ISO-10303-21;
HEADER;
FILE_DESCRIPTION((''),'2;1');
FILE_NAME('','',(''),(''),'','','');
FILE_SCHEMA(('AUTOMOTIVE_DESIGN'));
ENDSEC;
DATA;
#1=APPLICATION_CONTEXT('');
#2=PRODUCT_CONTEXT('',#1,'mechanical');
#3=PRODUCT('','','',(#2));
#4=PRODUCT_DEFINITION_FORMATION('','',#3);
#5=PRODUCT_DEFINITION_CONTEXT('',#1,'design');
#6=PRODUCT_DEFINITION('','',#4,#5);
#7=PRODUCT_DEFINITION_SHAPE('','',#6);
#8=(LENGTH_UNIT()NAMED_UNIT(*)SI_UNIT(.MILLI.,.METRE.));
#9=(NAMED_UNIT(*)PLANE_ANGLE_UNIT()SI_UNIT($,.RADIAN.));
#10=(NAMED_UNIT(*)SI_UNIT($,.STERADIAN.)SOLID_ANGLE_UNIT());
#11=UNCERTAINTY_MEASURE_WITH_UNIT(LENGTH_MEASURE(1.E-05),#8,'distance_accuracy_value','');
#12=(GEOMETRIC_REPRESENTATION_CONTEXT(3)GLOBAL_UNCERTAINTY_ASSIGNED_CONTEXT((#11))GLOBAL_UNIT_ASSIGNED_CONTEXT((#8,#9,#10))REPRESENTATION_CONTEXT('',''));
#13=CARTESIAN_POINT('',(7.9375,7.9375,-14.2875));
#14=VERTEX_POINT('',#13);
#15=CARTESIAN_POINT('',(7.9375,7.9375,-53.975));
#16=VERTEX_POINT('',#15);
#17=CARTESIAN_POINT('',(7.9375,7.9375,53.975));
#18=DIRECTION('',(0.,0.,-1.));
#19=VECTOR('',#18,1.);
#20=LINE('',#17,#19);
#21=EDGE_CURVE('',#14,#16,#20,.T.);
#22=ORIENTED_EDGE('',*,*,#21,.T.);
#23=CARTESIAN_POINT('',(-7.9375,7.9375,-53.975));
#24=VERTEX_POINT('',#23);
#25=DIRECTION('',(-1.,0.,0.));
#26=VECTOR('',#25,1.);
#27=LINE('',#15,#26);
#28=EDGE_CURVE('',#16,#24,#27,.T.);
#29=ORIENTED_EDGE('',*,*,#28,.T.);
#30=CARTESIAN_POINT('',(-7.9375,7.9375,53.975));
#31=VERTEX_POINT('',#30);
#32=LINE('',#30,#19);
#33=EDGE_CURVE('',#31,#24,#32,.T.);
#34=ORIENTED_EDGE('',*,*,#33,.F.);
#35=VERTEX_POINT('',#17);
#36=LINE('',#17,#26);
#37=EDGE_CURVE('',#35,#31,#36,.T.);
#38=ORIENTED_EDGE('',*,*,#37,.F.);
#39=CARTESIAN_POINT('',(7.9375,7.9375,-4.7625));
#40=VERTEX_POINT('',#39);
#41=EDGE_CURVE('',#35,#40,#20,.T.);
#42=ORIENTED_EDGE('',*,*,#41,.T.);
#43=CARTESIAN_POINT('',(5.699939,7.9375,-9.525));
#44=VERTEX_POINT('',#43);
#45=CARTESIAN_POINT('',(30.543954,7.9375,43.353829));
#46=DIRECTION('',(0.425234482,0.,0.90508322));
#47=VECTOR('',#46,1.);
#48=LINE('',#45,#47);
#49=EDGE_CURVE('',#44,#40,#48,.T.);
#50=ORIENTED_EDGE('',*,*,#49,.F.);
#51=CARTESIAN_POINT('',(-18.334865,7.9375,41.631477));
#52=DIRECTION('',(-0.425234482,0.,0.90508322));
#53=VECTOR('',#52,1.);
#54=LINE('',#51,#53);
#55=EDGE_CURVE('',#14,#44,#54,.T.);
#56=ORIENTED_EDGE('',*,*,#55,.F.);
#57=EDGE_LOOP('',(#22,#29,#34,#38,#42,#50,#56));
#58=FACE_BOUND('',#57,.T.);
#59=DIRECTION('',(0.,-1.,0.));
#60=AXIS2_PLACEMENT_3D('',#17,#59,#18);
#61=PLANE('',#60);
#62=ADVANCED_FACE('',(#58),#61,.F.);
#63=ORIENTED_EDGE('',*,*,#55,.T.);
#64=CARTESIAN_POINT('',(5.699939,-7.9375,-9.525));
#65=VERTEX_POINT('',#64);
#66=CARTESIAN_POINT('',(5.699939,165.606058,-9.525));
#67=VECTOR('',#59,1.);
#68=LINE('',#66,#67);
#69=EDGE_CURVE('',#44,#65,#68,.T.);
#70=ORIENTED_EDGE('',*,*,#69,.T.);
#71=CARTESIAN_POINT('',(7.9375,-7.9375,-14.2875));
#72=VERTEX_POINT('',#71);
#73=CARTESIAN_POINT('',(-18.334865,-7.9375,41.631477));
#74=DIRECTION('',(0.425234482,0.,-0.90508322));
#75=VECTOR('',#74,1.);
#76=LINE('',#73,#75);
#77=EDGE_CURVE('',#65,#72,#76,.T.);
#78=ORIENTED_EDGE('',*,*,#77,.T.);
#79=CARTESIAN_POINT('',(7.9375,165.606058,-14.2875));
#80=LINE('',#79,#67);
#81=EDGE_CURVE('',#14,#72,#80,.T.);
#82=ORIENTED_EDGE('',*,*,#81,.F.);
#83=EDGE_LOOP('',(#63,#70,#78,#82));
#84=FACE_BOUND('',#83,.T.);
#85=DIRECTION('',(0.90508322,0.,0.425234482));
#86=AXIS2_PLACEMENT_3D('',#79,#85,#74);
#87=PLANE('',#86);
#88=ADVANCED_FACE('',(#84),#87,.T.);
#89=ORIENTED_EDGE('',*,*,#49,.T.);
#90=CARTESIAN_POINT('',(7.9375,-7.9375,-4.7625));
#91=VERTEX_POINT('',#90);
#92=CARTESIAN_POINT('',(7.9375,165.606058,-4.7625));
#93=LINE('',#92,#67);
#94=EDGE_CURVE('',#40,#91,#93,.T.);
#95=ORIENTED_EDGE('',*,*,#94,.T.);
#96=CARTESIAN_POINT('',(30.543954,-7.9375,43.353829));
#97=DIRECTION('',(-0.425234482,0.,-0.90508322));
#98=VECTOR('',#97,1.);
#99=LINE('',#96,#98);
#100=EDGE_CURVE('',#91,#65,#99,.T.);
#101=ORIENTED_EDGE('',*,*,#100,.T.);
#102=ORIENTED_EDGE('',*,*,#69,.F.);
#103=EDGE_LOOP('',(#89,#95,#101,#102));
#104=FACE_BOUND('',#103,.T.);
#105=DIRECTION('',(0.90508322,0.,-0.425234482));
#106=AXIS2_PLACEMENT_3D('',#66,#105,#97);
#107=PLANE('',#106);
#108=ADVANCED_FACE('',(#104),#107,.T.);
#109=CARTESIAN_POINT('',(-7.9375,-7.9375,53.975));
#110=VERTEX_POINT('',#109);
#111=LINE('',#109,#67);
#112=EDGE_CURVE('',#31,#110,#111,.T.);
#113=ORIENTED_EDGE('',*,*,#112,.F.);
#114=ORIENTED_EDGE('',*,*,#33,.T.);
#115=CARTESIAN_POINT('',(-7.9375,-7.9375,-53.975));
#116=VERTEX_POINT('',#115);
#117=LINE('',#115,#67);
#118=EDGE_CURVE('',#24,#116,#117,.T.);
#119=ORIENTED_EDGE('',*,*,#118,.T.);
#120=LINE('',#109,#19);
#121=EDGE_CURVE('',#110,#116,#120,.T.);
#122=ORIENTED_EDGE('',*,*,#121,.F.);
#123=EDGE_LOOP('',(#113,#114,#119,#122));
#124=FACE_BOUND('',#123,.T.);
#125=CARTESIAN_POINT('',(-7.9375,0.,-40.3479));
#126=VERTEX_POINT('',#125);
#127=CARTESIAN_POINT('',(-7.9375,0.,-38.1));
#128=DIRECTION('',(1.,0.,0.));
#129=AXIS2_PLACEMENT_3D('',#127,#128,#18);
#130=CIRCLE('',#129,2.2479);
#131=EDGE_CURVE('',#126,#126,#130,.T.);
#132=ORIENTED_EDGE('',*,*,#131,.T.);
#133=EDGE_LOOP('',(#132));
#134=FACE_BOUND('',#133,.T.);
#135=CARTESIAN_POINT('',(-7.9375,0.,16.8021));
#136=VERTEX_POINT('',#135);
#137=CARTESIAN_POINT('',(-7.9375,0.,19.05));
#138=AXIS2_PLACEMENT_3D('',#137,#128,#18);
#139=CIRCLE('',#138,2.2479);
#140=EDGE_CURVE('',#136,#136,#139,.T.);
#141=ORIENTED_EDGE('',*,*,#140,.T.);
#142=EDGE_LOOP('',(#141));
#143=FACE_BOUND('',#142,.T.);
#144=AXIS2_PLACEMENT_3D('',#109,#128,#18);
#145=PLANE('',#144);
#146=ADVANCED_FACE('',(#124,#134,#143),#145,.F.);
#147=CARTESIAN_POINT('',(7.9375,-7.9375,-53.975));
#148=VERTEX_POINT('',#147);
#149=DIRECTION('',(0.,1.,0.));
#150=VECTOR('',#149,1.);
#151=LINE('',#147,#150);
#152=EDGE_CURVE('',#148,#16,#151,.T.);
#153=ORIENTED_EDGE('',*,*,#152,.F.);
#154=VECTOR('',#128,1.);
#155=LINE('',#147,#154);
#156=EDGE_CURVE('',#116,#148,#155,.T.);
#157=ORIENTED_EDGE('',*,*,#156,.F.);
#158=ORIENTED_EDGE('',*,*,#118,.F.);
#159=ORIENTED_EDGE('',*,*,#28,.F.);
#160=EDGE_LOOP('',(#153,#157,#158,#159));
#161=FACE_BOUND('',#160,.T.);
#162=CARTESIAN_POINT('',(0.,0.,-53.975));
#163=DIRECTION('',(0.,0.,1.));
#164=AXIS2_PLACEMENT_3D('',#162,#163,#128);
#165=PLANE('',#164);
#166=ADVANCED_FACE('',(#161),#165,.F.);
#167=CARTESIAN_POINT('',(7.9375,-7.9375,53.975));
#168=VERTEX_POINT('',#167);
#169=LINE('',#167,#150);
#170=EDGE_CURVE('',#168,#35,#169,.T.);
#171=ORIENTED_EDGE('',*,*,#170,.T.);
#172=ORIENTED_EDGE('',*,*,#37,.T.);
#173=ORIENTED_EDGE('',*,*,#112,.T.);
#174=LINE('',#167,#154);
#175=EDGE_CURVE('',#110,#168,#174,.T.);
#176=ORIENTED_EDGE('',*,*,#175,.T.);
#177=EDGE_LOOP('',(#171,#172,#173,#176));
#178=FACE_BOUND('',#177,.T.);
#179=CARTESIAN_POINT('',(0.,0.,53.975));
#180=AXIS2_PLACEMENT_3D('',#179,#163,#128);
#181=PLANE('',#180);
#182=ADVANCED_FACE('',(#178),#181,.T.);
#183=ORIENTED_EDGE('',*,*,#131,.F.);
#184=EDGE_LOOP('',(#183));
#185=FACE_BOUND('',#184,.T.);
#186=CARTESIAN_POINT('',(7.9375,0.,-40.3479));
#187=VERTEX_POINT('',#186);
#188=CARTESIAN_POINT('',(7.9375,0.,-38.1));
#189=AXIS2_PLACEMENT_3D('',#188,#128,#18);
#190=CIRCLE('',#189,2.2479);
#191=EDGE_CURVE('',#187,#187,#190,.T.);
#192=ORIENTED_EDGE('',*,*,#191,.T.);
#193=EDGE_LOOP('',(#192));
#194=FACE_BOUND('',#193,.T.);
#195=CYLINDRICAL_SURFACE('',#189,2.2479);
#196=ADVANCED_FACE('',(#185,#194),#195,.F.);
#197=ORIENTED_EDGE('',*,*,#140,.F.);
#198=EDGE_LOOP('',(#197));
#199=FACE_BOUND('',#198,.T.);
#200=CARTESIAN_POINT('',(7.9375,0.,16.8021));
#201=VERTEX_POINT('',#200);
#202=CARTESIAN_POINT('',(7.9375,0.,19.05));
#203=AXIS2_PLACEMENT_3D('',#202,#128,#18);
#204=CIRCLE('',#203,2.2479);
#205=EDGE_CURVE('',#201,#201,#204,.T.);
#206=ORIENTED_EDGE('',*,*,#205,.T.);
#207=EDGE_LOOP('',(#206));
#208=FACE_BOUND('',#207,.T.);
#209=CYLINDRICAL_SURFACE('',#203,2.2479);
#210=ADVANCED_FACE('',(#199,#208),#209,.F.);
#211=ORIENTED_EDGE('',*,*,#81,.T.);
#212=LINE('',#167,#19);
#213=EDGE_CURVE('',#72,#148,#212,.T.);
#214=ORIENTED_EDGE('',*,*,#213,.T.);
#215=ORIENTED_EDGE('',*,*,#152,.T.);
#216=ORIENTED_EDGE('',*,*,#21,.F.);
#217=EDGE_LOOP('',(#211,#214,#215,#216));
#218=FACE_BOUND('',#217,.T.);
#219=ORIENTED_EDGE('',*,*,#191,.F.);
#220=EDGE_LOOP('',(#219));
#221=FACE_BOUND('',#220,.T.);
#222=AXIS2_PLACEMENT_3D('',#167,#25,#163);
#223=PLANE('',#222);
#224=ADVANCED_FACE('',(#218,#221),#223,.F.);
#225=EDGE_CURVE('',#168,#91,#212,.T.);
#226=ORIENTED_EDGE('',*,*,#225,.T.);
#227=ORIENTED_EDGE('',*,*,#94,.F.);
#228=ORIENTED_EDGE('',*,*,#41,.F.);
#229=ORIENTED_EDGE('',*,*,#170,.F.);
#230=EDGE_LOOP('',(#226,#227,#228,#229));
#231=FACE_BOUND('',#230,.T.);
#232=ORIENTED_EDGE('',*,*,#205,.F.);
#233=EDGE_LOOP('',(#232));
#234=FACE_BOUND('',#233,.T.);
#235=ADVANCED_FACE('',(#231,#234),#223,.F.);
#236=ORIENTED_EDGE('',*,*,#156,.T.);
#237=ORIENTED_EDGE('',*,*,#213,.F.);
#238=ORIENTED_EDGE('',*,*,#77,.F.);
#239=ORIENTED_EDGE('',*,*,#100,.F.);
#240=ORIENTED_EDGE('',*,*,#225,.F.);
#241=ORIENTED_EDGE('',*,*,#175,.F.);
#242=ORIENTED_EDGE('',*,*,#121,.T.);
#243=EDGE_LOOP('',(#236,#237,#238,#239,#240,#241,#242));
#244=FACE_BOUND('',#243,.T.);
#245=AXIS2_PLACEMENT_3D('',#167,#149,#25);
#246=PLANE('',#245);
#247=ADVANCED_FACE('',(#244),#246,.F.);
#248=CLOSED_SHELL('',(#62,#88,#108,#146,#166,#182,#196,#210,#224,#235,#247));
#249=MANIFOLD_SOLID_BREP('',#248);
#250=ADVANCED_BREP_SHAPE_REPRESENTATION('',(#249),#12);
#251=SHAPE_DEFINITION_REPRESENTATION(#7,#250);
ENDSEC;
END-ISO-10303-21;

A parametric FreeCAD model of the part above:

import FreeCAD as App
import Part
import Sketcher
from FreeCAD import Vector
Q = App.Units.Quantity


def add_polygon(sketch, points):
    """Adds a closed chain of lines whose ends are joined by coincident constraints."""
    first, n = sketch.GeometryCount, len(points)
    for a, b in zip(points, points[1:] + points[:1]):
        sketch.addGeometry(Part.LineSegment(App.Vector(*a, 0), App.Vector(*b, 0)), False)
    for i in range(n):
        sketch.addConstraint(Sketcher.Constraint("Coincident", first + i, 2, first + (i + 1) % n, 1))

doc = App.newDocument("Part")
body = doc.addObject("PartDesign::Body", "Body")

sketch1 = doc.addObject("Sketcher::SketchObject", "Sketch")
body.addObject(sketch1)
sketch1.AttachmentSupport = (doc.XY_Plane, [""])
sketch1.MapMode = "FlatFace"
add_polygon(sketch1, [(-8, 8), (-8, -8), (8, -8), (8, 8)])
sketch1.addConstraint(Sketcher.Constraint("Vertical", 0))
sketch1.addConstraint(Sketcher.Constraint("Horizontal", 1))
sketch1.addConstraint(Sketcher.Constraint("Vertical", 2))
sketch1.addConstraint(Sketcher.Constraint("Horizontal", 3))
sketch1.addConstraint(Sketcher.Constraint("Symmetric", 0, 2, 2, 2, -1, 1))
sketch1.addConstraint(Sketcher.Constraint("Equal", 3, 0))
sketch1.addConstraint(Sketcher.Constraint("DistanceX", 1, 1, 1, 2, Q("0.625 in")))
pad1 = doc.addObject("PartDesign::Pad", "Pad")
body.addObject(pad1)
pad1.Profile = sketch1
pad1.Length = Q("4.25 in")
pad1.Midplane = True

sketch2 = doc.addObject("Sketcher::SketchObject", "Sketch001")
body.addObject(sketch2)
sketch2.AttachmentSupport = (doc.XZ_Plane, [""])
sketch2.MapMode = "FlatFace"
sketch2.AttachmentOffset = App.Placement(Vector(0, 0, -0.3125 * 25.4), App.Rotation())
add_polygon(sketch2, [(72, -150), (8, -14), (6, -10), (8, -5), (72, 131), (372, 131), (372, -150)])
sketch2.addConstraint(Sketcher.Constraint("Horizontal", 4))
sketch2.addConstraint(Sketcher.Constraint("Vertical", 5))
sketch2.addConstraint(Sketcher.Constraint("Horizontal", 6))
sketch2.addConstraint(Sketcher.Constraint("Parallel", 0, 1))
sketch2.addConstraint(Sketcher.Constraint("Parallel", 2, 3))
sketch2.addConstraint(Sketcher.Constraint("Vertical", 0, 2, 2, 2))
sketch2.addConstraint(Sketcher.Constraint("Vertical", 3, 2, 6, 2))
sketch2.addConstraint(Sketcher.Constraint("Equal", 1, 2))
sketch2.addConstraint(Sketcher.Constraint("DistanceX", -1, 1, 0, 2, Q("0.3125 in")))
sketch2.addConstraint(Sketcher.Constraint("DistanceY", 0, 2, -1, 1, Q("0.5625 in")))
sketch2.addConstraint(Sketcher.Constraint("DistanceY", 1, 2, -1, 1, Q("0.375 in")))
sketch2.addConstraint(Sketcher.Constraint("DistanceX", 4, 1, 4, 2, 300.336499))
sketch2.addConstraint(Sketcher.Constraint("Distance", 0, 150.168249))
sketch2.addConstraint(Sketcher.Constraint("DistanceY", 5, 2, 5, 1, 281.354525))
pocket1 = doc.addObject("PartDesign::Pocket", "Pocket")
body.addObject(pocket1)
pocket1.Profile = sketch2
pocket1.Type = "ThroughAll"
pocket1.Midplane = True

sketch3 = doc.addObject("Sketcher::SketchObject", "Sketch002")
body.addObject(sketch3)
sketch3.AttachmentSupport = (doc.YZ_Plane, [""])
sketch3.MapMode = "FlatFace"
sketch3.AttachmentOffset = App.Placement(Vector(0, 0, 0.3125 * 25.4), App.Rotation())
sketch3.addGeometry(Part.Circle(Vector(0, -38.1, 0), Vector(0, 0, 1), 2.2), False)
sketch3.addGeometry(Part.Circle(Vector(0, 19.1, 0), Vector(0, 0, 1), 2.2), False)
sketch3.addConstraint(Sketcher.Constraint("Equal", 0, 1))
sketch3.addConstraint(Sketcher.Constraint("PointOnObject", 0, 3, -2))
sketch3.addConstraint(Sketcher.Constraint("PointOnObject", 1, 3, -2))
sketch3.addConstraint(Sketcher.Constraint("Diameter", 0, Q("0.177 in")))
sketch3.addConstraint(Sketcher.Constraint("DistanceY", 0, 3, -1, 1, Q("1.5 in")))
sketch3.addConstraint(Sketcher.Constraint("DistanceY", -1, 1, 1, 3, Q("0.75 in")))
doc.recompute()
hole = doc.addObject("PartDesign::Hole", "Hole")
body.addObject(hole)
hole.Profile = sketch3
hole.ThreadType = "None"
hole.Diameter = Q("0.177 in")
hole.DepthType = "ThroughAll"

doc.recompute()
